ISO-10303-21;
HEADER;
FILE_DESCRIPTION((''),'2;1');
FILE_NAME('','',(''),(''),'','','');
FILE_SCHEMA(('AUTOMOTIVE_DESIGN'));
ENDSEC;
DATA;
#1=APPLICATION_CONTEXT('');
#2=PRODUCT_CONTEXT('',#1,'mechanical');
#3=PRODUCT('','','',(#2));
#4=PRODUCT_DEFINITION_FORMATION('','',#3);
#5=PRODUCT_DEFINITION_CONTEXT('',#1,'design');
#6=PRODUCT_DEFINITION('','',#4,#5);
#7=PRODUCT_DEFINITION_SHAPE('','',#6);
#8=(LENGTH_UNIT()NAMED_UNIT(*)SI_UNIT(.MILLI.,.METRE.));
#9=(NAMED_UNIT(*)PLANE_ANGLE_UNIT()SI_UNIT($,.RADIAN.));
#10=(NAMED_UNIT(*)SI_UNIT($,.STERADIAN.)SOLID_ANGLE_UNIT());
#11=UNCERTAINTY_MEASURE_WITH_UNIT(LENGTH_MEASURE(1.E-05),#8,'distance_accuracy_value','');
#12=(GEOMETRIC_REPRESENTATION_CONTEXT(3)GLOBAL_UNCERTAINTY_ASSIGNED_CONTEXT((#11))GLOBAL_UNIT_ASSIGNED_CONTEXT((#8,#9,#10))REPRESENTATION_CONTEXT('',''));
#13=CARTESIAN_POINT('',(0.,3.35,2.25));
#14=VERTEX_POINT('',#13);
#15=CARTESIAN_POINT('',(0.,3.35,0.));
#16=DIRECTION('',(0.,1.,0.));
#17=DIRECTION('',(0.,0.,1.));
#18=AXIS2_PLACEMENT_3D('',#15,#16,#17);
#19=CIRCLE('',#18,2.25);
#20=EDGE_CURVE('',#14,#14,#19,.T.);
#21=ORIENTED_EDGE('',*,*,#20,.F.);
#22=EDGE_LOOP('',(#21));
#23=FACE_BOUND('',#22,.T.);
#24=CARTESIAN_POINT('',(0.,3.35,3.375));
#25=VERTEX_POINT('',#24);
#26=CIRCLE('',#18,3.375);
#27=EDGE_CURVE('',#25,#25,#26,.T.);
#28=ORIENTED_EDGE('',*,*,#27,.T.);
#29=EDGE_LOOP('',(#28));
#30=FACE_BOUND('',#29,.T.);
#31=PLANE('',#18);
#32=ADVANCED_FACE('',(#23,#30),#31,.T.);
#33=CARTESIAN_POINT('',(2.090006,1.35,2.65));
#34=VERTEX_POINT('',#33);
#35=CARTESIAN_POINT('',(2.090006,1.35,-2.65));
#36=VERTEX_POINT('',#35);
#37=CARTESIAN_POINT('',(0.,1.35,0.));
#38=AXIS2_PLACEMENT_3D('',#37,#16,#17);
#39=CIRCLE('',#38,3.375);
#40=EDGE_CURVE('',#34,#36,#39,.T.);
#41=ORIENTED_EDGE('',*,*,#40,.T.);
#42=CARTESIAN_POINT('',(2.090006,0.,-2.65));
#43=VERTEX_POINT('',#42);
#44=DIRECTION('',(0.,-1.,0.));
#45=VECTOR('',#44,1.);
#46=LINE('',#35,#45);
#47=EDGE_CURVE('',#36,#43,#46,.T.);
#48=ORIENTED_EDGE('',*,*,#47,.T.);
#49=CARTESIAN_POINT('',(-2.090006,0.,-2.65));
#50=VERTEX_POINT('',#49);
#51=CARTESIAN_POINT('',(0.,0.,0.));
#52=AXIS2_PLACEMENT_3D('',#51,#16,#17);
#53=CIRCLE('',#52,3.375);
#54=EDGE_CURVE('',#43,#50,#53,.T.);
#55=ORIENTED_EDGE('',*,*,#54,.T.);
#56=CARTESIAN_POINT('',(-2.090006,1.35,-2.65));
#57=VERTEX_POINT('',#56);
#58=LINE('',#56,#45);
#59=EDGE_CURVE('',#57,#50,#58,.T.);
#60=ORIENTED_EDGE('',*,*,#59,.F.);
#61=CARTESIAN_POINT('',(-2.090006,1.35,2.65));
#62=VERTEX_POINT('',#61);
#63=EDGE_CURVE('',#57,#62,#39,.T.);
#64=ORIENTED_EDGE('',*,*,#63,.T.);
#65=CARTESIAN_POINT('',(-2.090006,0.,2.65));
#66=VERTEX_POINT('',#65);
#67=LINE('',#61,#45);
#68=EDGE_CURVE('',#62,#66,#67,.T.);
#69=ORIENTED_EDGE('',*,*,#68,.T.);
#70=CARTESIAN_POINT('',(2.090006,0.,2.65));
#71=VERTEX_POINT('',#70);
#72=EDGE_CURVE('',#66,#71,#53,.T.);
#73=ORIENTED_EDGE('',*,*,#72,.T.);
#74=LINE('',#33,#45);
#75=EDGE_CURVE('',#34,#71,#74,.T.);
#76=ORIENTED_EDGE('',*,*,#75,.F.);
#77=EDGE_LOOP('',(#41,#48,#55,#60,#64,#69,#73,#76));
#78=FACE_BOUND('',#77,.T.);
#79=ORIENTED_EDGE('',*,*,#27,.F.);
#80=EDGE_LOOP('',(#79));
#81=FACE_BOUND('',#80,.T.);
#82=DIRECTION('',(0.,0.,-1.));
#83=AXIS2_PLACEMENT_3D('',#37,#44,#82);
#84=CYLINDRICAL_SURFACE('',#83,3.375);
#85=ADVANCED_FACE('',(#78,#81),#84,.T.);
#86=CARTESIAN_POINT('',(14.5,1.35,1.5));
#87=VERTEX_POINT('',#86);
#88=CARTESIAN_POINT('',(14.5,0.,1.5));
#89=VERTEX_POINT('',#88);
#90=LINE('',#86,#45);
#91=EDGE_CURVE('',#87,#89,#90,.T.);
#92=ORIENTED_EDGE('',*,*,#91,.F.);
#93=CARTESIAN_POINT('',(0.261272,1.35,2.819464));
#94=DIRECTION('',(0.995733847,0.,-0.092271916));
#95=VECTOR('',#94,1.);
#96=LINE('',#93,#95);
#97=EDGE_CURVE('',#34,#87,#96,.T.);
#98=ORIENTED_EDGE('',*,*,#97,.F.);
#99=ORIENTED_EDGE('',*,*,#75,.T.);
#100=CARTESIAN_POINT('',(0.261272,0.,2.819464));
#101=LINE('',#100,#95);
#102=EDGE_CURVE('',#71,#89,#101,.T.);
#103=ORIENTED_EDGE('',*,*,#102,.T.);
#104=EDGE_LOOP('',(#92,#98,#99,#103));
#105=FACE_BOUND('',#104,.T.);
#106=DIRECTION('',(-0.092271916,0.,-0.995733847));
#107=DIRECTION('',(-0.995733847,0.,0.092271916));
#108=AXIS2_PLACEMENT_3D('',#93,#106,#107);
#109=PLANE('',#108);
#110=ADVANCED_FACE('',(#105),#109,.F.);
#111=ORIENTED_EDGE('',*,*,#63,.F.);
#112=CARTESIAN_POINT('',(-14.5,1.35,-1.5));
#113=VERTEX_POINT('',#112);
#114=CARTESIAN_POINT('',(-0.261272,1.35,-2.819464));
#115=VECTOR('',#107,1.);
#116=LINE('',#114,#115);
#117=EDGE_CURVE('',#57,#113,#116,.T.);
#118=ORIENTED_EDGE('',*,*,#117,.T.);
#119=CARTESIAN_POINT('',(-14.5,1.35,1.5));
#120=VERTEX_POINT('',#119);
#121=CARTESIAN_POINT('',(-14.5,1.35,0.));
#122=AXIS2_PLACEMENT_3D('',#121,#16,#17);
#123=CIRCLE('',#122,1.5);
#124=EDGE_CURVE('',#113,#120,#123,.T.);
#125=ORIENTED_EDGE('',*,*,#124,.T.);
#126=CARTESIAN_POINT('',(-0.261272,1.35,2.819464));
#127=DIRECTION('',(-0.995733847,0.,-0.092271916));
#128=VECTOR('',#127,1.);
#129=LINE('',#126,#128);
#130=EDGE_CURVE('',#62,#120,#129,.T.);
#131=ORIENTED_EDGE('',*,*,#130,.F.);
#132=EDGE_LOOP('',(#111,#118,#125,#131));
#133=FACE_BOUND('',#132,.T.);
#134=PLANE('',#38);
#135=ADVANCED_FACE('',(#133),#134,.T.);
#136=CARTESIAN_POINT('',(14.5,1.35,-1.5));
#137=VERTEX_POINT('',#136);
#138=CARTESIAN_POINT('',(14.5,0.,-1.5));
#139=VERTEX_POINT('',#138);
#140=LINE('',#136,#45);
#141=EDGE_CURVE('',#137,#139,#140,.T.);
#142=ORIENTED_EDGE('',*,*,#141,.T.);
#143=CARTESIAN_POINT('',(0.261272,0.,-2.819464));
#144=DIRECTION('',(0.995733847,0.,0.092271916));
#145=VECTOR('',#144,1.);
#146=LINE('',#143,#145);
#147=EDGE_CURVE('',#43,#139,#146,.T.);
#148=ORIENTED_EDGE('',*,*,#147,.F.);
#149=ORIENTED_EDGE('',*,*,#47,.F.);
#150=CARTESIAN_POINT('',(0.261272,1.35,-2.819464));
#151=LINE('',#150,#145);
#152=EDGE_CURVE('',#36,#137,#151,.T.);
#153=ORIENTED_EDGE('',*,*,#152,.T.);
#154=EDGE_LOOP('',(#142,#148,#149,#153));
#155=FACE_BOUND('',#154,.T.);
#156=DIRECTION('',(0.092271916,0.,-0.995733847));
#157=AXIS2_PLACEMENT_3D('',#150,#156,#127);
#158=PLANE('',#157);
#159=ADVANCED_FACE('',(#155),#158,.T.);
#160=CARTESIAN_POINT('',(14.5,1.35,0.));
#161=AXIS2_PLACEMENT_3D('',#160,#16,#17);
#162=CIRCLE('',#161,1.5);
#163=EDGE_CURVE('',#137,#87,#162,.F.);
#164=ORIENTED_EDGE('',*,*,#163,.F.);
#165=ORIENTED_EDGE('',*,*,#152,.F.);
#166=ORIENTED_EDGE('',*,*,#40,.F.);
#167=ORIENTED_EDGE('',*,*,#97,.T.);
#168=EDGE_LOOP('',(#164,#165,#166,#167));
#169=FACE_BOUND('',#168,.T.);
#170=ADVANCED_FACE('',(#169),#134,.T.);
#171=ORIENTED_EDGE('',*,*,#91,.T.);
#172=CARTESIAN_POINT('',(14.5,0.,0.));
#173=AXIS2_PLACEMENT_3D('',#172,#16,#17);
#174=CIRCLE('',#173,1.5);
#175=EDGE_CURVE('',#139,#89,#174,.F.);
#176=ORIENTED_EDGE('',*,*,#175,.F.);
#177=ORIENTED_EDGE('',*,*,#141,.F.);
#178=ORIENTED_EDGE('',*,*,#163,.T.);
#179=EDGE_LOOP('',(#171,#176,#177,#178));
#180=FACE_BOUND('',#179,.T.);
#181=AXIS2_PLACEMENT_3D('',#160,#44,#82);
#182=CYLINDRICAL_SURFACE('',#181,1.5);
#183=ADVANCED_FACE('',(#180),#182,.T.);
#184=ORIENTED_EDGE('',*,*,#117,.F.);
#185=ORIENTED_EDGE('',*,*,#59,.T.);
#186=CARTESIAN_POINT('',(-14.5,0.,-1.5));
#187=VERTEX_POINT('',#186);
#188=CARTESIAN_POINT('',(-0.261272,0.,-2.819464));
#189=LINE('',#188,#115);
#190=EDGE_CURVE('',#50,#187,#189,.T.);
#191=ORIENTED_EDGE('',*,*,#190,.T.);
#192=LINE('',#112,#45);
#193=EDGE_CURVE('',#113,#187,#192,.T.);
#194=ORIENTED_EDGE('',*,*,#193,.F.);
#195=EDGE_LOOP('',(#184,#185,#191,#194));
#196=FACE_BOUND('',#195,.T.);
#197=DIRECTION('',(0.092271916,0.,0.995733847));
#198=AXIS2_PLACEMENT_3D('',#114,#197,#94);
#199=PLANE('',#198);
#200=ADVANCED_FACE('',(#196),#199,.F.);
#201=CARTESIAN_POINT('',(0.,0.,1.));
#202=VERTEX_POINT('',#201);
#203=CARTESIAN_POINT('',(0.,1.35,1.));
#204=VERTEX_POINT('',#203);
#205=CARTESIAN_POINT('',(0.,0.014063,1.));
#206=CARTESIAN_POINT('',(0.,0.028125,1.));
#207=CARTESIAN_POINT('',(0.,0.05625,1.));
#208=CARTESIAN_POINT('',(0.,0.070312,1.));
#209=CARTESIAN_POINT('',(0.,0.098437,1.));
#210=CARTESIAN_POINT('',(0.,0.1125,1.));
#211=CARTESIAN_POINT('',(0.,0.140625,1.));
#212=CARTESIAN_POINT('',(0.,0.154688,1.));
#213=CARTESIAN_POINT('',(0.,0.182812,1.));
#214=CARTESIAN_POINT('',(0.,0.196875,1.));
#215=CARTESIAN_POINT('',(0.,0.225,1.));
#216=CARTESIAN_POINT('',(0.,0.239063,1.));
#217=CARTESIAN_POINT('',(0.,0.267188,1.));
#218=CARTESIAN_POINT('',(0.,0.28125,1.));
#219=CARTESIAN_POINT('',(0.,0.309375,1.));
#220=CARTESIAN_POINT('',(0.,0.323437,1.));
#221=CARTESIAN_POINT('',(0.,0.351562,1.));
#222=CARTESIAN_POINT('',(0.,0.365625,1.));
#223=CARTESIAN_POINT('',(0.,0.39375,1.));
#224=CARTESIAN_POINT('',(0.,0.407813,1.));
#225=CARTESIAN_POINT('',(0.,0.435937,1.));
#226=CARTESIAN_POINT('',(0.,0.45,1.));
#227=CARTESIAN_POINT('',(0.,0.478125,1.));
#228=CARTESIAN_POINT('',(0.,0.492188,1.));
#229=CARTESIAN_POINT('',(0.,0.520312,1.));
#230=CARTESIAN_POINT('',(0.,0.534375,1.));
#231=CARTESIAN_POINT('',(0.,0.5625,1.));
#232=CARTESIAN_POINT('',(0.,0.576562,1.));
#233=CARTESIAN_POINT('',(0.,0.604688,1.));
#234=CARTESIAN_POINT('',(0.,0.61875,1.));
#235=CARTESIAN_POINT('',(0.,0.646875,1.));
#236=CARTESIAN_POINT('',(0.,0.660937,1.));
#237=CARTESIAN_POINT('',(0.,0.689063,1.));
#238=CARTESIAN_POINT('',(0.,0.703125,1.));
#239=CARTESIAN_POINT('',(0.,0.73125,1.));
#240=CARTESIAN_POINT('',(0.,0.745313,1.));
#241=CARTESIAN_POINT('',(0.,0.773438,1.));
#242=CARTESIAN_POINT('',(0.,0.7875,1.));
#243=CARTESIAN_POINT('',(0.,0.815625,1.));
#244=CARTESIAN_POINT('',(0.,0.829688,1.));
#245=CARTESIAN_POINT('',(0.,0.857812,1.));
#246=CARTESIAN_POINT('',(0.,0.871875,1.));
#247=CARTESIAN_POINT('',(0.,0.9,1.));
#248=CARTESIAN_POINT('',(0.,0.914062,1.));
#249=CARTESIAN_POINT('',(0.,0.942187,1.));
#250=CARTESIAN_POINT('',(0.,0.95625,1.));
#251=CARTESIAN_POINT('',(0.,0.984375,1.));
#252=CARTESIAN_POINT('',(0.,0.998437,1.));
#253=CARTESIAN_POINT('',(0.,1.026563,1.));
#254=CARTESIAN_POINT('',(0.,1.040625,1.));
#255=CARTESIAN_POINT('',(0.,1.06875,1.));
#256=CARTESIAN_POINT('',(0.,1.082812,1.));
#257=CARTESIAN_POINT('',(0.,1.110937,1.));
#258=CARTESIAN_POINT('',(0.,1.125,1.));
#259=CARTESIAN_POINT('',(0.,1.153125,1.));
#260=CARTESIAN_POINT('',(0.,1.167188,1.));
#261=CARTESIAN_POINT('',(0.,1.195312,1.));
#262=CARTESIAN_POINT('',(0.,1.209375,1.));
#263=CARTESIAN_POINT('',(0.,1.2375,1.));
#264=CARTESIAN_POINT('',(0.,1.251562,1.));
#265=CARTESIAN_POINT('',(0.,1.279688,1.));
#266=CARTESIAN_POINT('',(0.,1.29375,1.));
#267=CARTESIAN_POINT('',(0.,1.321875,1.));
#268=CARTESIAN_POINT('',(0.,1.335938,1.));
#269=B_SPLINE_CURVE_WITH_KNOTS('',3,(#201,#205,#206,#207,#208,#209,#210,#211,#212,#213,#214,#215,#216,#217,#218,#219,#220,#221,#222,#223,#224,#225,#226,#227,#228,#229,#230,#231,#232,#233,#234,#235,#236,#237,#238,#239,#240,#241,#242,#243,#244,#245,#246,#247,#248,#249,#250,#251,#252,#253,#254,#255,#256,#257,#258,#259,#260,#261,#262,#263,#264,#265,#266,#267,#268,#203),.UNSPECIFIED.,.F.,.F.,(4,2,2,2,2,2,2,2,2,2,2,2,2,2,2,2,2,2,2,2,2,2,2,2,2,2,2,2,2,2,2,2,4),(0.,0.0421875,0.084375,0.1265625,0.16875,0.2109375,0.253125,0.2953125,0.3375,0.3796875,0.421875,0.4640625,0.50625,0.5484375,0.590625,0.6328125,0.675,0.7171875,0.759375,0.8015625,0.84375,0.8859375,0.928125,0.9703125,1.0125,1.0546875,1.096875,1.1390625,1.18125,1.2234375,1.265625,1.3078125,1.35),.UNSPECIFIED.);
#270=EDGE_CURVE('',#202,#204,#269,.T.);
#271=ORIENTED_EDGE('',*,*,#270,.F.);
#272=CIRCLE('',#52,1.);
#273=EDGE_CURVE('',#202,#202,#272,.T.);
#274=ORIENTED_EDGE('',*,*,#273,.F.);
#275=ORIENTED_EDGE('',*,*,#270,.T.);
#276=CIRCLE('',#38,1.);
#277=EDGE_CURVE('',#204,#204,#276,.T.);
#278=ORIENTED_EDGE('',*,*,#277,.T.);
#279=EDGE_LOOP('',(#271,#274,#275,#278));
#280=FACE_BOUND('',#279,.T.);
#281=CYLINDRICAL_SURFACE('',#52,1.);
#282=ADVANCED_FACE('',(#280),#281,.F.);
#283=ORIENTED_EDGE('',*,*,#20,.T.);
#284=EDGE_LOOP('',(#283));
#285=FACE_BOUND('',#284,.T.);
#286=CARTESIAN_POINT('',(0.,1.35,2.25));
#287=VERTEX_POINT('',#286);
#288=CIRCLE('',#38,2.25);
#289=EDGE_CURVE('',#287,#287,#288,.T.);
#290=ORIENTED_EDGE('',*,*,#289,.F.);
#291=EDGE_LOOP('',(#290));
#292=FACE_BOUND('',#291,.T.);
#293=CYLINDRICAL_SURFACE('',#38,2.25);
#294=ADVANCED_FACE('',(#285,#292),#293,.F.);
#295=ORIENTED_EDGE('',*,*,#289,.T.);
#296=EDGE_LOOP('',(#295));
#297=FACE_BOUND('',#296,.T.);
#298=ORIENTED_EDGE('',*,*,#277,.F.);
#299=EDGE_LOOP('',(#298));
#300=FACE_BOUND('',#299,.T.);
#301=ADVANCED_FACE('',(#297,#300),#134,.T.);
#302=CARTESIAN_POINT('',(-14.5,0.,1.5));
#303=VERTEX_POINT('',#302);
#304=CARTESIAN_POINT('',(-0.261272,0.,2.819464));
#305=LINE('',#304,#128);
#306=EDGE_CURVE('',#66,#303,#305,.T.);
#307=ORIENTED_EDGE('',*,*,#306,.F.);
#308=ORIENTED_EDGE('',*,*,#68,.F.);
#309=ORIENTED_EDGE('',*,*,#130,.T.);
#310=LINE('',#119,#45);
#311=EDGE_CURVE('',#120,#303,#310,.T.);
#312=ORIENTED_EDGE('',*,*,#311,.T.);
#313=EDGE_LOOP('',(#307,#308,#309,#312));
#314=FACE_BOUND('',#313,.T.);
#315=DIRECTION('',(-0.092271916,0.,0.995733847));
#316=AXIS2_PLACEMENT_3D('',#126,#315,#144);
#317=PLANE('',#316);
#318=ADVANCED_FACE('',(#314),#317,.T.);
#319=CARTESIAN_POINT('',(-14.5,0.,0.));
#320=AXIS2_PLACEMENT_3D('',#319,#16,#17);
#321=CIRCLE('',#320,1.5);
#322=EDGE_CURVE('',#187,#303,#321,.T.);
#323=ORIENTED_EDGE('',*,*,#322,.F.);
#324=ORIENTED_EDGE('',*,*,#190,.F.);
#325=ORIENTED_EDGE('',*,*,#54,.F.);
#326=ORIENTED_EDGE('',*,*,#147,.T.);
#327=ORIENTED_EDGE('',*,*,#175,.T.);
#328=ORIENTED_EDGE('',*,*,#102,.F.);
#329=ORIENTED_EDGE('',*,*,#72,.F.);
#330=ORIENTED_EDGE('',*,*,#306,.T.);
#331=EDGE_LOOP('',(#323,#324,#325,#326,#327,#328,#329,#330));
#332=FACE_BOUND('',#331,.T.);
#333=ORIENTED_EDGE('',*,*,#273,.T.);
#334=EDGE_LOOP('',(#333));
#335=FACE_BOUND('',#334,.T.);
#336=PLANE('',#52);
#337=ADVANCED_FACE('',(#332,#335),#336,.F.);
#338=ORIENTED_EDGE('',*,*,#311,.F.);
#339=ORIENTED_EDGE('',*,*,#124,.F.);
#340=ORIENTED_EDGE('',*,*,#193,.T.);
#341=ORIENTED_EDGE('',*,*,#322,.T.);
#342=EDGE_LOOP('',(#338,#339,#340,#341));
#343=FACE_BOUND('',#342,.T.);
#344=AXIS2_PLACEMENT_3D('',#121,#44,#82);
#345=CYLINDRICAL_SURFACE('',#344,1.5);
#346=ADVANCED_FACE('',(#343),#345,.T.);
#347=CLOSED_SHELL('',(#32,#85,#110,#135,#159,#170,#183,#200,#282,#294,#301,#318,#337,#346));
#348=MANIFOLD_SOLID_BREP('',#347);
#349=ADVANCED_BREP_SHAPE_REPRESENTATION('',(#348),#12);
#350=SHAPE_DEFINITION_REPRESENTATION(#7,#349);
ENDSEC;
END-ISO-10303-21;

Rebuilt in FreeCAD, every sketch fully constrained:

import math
import FreeCAD as App
import Part
import Sketcher

V = App.Vector

doc = App.newDocument("Part")
params = doc.addObject("Spreadsheet::Sheet", "Params")
for row, (alias, value) in enumerate([
    ("sketch1_radius", "1.5 mm"),
    ("pad1_length", "1.35 mm"),
    ("sketch2_diameter", "6.75 mm"),
    ("pad2_length", "2 mm"),
    ("sketch3_diameter", "4.5 mm"),
    ("pocket1_length", "2 mm"),
    ("sketch4_diameter", "2 mm"),
], start=1):
    params.set(f"A{row}", alias)
    params.set(f"B{row}", "=" + value)
    params.setAlias(f"B{row}", alias)

body = doc.addObject("PartDesign::Body", "Body")

sketch1 = doc.addObject("Sketcher::SketchObject", "Sketch")
body.addObject(sketch1)
sketch1.AttachmentSupport = (doc.XZ_Plane, [""])
sketch1.MapMode = "FlatFace"
sketch1.addGeometry([
    Part.LineSegment(V(-14.5, 1.5, 0), V(-2.1, 2.6, 0)),
    Part.ArcOfCircle(Part.Circle(V(0, 0, 0), V(0, 0, 1), 3.4), math.radians(52), math.radians(128)),
    Part.LineSegment(V(2.1, 2.6, 0), V(14.5, 1.5, 0)),
    Part.ArcOfCircle(Part.Circle(V(14.5, 0, 0), V(0, 0, 1), 1.5), math.radians(-90), math.radians(90)),
    Part.LineSegment(V(14.5, -1.5, 0), V(2.1, -2.6, 0)),
    Part.ArcOfCircle(Part.Circle(V(0, 0, 0), V(0, 0, 1), 3.4), math.radians(-128), math.radians(-52)),
    Part.LineSegment(V(-2.1, -2.6, 0), V(-14.5, -1.5, 0)),
    Part.ArcOfCircle(Part.Circle(V(-14.5, 0, 0), V(0, 0, 1), 1.5), math.radians(90), math.radians(270)),
], False)
sketch1.addConstraint([
    Sketcher.Constraint("Coincident", 0, 2, 1, 2),
    Sketcher.Constraint("Coincident", 1, 1, 2, 1),
    Sketcher.Constraint("Coincident", 2, 2, 3, 2),
    Sketcher.Constraint("Coincident", 3, 1, 4, 1),
    Sketcher.Constraint("Coincident", 4, 2, 5, 2),
    Sketcher.Constraint("Coincident", 5, 1, 6, 1),
    Sketcher.Constraint("Coincident", 6, 2, 7, 2),
    Sketcher.Constraint("Coincident", 7, 1, 0, 1),
    Sketcher.Constraint("Coincident", 1, 3, -1, 1),
    Sketcher.Constraint("Coincident", 5, 3, -1, 1),
    Sketcher.Constraint("Equal", 1, 5),
    Sketcher.Constraint("Equal", 3, 7),
    Sketcher.Constraint("Symmetric", 3, 3, 7, 3, -1, 1),
    Sketcher.Constraint("Symmetric", 3, 1, 6, 2, -2),
    Sketcher.Constraint("Parallel", 0, 4),
    Sketcher.Constraint("Parallel", 2, 6),
    Sketcher.Constraint("Horizontal", 0, 2, 1, 1),
    Sketcher.Constraint("Horizontal", 4, 2, 5, 1),
    Sketcher.Constraint("Vertical", 3, 3, 2, 2),
    Sketcher.Constraint("Vertical", 2, 2, 3, 1),
    Sketcher.Constraint("Radius", 3, 1.5),
    Sketcher.Constraint("Radius", 1, 3.375),
    Sketcher.Constraint("DistanceX", 7, 3, 3, 3, 29.0),
    Sketcher.Constraint("DistanceY", 4, 2, 1, 1, 5.3),
])
sketch1.setExpression("Constraints[20]", "Params.sketch1_radius")
pad1 = doc.addObject("PartDesign::Pad", "Pad")
body.addObject(pad1)
pad1.Profile = sketch1
pad1.setExpression("Length", "Params.pad1_length")
pad1.Reversed = True

sketch2 = doc.addObject("Sketcher::SketchObject", "Sketch001")
body.addObject(sketch2)
sketch2.AttachmentSupport = (doc.XZ_Plane, [""])
sketch2.MapMode = "FlatFace"
sketch2.AttachmentOffset = App.Placement(V(0, 0, -1.35), App.Rotation())
sketch2.addGeometry(Part.Circle(V(0, 0, 0), V(0, 0, 1), 3.4), False)
sketch2.addConstraint([
    Sketcher.Constraint("Coincident", 0, 3, -1, 1),
    Sketcher.Constraint("Diameter", 0, 6.75),
])
sketch2.setExpression("Constraints[1]", "Params.sketch2_diameter")
pad2 = doc.addObject("PartDesign::Pad", "Pad001")
body.addObject(pad2)
pad2.Profile = sketch2
pad2.setExpression("Length", "Params.pad2_length")
pad2.Reversed = True

sketch3 = doc.addObject("Sketcher::SketchObject", "Sketch002")
body.addObject(sketch3)
sketch3.AttachmentSupport = (doc.XZ_Plane, [""])
sketch3.MapMode = "FlatFace"
sketch3.AttachmentOffset = App.Placement(V(0, 0, -3.35), App.Rotation())
sketch3.addGeometry(Part.Circle(V(0, 0, 0), V(0, 0, 1), 2.2), False)
sketch3.addConstraint([
    Sketcher.Constraint("Coincident", 0, 3, -1, 1),
    Sketcher.Constraint("Diameter", 0, 4.5),
])
sketch3.setExpression("Constraints[1]", "Params.sketch3_diameter")
pocket1 = doc.addObject("PartDesign::Pocket", "Pocket")
body.addObject(pocket1)
pocket1.Profile = sketch3
pocket1.setExpression("Length", "Params.pocket1_length")
pocket1.Reversed = True

sketch4 = doc.addObject("Sketcher::SketchObject", "Sketch003")
body.addObject(sketch4)
sketch4.AttachmentSupport = (doc.XZ_Plane, [""])
sketch4.MapMode = "FlatFace"
sketch4.AttachmentOffset = App.Placement(V(0, 0, -1.35), App.Rotation())
sketch4.addGeometry(Part.Circle(V(0, 0, 0), V(0, 0, 1), 1), False)
sketch4.addConstraint([
    Sketcher.Constraint("Coincident", 0, 3, -1, 1),
    Sketcher.Constraint("Diameter", 0, 2.0),
])
sketch4.setExpression("Constraints[1]", "Params.sketch4_diameter")
pocket2 = doc.addObject("PartDesign::Pocket", "Pocket001")
body.addObject(pocket2)
pocket2.Profile = sketch4
pocket2.Type = "ThroughAll"
pocket2.Reversed = True

doc.recompute()
